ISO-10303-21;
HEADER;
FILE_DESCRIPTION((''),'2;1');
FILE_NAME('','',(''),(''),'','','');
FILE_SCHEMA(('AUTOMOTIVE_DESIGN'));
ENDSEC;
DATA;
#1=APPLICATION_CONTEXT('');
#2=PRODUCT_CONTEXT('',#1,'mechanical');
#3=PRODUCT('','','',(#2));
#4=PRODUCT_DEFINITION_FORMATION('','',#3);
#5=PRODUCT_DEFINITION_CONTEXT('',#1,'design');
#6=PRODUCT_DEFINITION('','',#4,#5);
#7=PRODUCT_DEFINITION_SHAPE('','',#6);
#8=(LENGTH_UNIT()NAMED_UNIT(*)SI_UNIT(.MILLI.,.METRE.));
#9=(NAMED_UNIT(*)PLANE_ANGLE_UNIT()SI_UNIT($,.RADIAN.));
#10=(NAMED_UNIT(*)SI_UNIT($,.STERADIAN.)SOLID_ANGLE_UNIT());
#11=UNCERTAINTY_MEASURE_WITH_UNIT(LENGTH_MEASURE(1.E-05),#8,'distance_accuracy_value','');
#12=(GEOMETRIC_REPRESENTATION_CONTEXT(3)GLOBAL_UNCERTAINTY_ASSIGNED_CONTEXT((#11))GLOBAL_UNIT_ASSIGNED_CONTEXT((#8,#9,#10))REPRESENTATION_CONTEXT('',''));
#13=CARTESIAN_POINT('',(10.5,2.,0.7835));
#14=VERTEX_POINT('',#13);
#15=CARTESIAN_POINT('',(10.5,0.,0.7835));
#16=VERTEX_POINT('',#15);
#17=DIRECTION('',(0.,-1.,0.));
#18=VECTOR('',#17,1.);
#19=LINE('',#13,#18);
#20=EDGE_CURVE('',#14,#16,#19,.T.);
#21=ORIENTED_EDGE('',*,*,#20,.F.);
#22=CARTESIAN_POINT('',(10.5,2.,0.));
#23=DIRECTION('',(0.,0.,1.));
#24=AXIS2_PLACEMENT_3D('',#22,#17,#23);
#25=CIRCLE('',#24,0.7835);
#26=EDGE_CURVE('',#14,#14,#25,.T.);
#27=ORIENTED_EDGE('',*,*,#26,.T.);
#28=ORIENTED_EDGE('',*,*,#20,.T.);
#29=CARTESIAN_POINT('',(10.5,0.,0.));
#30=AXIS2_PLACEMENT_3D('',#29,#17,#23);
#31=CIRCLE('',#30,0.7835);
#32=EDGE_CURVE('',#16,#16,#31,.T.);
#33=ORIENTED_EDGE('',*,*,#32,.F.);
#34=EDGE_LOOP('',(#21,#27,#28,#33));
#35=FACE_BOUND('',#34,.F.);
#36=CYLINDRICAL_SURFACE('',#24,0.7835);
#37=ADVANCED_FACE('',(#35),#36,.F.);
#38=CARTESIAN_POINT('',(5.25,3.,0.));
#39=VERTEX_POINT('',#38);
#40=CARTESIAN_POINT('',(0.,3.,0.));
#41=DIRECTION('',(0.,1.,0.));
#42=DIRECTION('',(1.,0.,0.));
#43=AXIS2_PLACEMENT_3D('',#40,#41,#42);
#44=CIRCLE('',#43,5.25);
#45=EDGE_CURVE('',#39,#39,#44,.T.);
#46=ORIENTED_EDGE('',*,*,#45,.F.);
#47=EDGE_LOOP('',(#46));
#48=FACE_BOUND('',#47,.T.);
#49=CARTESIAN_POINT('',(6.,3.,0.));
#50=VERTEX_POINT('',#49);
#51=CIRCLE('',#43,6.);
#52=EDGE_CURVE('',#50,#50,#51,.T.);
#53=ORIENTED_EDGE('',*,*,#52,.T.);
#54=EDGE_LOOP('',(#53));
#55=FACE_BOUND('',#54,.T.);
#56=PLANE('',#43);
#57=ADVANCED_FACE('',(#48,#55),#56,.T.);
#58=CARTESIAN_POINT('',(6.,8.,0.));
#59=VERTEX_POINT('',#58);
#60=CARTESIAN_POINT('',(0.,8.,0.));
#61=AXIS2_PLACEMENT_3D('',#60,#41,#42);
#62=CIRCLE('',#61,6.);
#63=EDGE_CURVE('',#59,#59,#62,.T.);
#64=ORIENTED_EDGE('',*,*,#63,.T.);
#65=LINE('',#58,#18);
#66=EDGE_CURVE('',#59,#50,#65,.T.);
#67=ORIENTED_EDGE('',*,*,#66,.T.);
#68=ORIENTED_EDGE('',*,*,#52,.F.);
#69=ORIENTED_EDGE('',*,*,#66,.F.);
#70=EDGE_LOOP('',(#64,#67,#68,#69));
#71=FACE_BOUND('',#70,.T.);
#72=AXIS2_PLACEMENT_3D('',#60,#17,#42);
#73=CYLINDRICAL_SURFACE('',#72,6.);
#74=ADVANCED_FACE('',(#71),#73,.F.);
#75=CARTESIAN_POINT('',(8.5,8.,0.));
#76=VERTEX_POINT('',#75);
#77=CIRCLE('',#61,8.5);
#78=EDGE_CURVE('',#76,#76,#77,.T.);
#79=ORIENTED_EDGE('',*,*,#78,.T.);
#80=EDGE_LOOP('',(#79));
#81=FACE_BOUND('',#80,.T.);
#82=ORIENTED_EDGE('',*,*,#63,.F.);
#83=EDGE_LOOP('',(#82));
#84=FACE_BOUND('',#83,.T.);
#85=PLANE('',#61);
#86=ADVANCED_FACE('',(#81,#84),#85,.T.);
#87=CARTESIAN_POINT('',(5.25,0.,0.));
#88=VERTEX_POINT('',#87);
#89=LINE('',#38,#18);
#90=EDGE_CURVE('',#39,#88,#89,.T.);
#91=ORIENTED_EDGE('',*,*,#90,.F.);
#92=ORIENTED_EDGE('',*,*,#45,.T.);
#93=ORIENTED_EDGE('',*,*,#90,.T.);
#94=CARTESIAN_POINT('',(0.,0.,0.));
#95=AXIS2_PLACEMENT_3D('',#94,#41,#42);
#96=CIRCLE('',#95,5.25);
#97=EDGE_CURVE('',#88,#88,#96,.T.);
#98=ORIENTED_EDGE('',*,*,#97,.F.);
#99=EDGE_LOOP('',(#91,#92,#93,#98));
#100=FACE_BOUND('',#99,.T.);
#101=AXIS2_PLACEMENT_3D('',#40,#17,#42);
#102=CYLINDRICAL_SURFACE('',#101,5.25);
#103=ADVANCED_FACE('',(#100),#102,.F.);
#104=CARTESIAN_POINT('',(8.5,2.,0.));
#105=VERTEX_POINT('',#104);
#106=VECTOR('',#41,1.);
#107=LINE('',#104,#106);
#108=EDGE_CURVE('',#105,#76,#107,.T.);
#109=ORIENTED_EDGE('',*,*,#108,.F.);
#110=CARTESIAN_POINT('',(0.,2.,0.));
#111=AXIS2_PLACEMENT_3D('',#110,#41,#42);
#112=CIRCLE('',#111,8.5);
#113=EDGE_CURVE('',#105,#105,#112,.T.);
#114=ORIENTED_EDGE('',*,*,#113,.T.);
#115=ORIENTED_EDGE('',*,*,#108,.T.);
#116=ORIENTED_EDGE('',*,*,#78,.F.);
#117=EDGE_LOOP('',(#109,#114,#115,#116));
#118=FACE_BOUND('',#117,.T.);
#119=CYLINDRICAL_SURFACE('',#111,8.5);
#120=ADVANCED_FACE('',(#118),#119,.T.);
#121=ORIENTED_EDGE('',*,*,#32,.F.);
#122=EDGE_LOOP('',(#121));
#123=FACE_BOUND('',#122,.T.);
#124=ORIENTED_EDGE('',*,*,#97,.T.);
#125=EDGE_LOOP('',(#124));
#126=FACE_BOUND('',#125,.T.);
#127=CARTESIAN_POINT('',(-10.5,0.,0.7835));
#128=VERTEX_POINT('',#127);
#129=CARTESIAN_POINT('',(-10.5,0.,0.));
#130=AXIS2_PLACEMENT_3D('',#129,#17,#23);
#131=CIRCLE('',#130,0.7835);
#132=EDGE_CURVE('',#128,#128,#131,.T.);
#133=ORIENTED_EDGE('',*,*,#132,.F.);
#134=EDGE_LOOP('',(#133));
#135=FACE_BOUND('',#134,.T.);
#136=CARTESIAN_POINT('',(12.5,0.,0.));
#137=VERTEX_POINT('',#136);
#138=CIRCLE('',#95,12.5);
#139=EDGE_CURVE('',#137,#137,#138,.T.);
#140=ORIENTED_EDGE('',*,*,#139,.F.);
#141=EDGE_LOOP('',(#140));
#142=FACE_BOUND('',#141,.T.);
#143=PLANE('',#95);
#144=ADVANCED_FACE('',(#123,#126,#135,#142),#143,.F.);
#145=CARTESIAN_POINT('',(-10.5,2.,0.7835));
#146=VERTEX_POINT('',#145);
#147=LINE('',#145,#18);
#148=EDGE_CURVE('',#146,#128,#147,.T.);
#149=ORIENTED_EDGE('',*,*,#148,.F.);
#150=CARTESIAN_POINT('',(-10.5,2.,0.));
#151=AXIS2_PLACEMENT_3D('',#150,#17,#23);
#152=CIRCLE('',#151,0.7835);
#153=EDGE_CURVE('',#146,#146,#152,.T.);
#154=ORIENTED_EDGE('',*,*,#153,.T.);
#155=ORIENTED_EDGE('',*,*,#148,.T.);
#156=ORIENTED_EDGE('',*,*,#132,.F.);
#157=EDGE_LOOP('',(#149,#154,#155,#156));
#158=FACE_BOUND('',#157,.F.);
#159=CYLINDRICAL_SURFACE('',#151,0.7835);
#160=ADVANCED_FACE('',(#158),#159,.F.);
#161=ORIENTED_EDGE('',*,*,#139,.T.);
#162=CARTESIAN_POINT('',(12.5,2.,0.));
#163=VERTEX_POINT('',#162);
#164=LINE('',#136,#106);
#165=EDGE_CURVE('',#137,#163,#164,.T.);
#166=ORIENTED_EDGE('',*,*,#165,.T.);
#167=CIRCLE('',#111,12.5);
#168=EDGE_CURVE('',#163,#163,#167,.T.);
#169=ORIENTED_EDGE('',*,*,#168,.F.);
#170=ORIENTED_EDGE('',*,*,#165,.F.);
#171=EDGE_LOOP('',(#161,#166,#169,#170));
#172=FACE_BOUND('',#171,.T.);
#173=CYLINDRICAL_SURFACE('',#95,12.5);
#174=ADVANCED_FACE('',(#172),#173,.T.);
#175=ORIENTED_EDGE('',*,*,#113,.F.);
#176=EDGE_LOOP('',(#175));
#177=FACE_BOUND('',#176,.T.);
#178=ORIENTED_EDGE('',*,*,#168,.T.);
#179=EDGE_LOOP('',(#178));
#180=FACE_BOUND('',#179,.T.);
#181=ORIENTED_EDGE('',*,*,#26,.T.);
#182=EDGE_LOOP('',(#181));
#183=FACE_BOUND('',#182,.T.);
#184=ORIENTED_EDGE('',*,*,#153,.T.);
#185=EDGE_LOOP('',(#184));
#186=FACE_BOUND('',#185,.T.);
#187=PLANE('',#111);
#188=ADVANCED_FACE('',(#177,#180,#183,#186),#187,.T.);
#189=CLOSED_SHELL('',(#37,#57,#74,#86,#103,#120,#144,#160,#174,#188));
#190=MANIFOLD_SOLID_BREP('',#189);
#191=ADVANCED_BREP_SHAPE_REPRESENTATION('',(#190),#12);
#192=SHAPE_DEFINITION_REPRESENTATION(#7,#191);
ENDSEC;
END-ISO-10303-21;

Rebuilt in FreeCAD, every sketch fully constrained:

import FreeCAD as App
import Part
import Sketcher

doc = App.newDocument("Part")
body = doc.addObject("PartDesign::Body", "Body")

sketch1 = body.newObject("Sketcher::SketchObject", "Sketch")
sketch1.AttachmentSupport = (doc.getObject("XY_Plane"), [""])
sketch1.MapMode = "FlatFace"
sketch1.addGeometry([
    Part.LineSegment(App.Vector(5.2, 0, 0), App.Vector(12.5, 0, 0)),
    Part.LineSegment(App.Vector(12.5, 0, 0), App.Vector(12.5, 2, 0)),
    Part.LineSegment(App.Vector(12.5, 2, 0), App.Vector(8.5, 2, 0)),
    Part.LineSegment(App.Vector(8.5, 2, 0), App.Vector(8.5, 8, 0)),
    Part.LineSegment(App.Vector(8.5, 8, 0), App.Vector(6, 8, 0)),
    Part.LineSegment(App.Vector(6, 8, 0), App.Vector(6, 3, 0)),
    Part.LineSegment(App.Vector(6, 3, 0), App.Vector(5.2, 3, 0)),
    Part.LineSegment(App.Vector(5.2, 3, 0), App.Vector(5.2, 0, 0)),
], False)
sketch1.addConstraint([
    Sketcher.Constraint("Coincident", 0, 2, 1, 1),
    Sketcher.Constraint("Coincident", 1, 2, 2, 1),
    Sketcher.Constraint("Coincident", 2, 2, 3, 1),
    Sketcher.Constraint("Coincident", 3, 2, 4, 1),
    Sketcher.Constraint("Coincident", 4, 2, 5, 1),
    Sketcher.Constraint("Coincident", 5, 2, 6, 1),
    Sketcher.Constraint("Coincident", 6, 2, 7, 1),
    Sketcher.Constraint("Coincident", 7, 2, 0, 1),
    Sketcher.Constraint("Horizontal", 0),
    Sketcher.Constraint("Vertical", 1),
    Sketcher.Constraint("Horizontal", 2),
    Sketcher.Constraint("Vertical", 3),
    Sketcher.Constraint("Horizontal", 4),
    Sketcher.Constraint("Vertical", 5),
    Sketcher.Constraint("Horizontal", 6),
    Sketcher.Constraint("Vertical", 7),
    Sketcher.Constraint("PointOnObject", 0, 2, -1),
    Sketcher.Constraint("DistanceY", 1, 1, 1, 2, 2.0),
    Sketcher.Constraint("DistanceY", 5, 2, 5, 1, 5.0),
    Sketcher.Constraint("DistanceX", 4, 2, 4, 1, 2.5),
    Sketcher.Constraint("DistanceY", -1, 1, 3, 2, 8.0),
    Sketcher.Constraint("DistanceX", 2, 2, 2, 1, 4.0),
    Sketcher.Constraint("DistanceX", -1, 1, 4, 2, 6.0),
    Sketcher.Constraint("DistanceX", 0, 1, 0, 2, 7.25),
])
revolution = body.newObject("PartDesign::Revolution", "Revolution")
revolution.Profile = sketch1
revolution.ReferenceAxis = (sketch1, ["V_Axis"])
revolution.Angle = 360

sketch2 = body.newObject("Sketcher::SketchObject", "Sketch001")
sketch2.AttachmentSupport = (doc.getObject("XZ_Plane"), [""])
sketch2.MapMode = "FlatFace"
sketch2.AttachmentOffset = App.Placement(App.Vector(0, 0, -2), App.Rotation())
sketch2.addGeometry([
    Part.Circle(App.Vector(-10.5, 0, 0), App.Vector(0, 0, 1), 0.8),
    Part.Circle(App.Vector(10.5, 0, 0), App.Vector(0, 0, 1), 0.8),
], False)
sketch2.addConstraint([
    Sketcher.Constraint("Equal", 0, 1),
    Sketcher.Constraint("Symmetric", 0, 3, 1, 3, -1, 1),
    Sketcher.Constraint("PointOnObject", 0, 3, -1),
    Sketcher.Constraint("Diameter", 0, 1.567),
    Sketcher.Constraint("DistanceX", 0, 3, 1, 3, 21.0),
])
doc.recompute()
hole = body.newObject("PartDesign::Hole", "Hole")
hole.Profile = sketch2
hole.ThreadType = "None"
hole.Diameter = 1.567
hole.DepthType = "ThroughAll"
hole.Reversed = True

doc.recompute()
